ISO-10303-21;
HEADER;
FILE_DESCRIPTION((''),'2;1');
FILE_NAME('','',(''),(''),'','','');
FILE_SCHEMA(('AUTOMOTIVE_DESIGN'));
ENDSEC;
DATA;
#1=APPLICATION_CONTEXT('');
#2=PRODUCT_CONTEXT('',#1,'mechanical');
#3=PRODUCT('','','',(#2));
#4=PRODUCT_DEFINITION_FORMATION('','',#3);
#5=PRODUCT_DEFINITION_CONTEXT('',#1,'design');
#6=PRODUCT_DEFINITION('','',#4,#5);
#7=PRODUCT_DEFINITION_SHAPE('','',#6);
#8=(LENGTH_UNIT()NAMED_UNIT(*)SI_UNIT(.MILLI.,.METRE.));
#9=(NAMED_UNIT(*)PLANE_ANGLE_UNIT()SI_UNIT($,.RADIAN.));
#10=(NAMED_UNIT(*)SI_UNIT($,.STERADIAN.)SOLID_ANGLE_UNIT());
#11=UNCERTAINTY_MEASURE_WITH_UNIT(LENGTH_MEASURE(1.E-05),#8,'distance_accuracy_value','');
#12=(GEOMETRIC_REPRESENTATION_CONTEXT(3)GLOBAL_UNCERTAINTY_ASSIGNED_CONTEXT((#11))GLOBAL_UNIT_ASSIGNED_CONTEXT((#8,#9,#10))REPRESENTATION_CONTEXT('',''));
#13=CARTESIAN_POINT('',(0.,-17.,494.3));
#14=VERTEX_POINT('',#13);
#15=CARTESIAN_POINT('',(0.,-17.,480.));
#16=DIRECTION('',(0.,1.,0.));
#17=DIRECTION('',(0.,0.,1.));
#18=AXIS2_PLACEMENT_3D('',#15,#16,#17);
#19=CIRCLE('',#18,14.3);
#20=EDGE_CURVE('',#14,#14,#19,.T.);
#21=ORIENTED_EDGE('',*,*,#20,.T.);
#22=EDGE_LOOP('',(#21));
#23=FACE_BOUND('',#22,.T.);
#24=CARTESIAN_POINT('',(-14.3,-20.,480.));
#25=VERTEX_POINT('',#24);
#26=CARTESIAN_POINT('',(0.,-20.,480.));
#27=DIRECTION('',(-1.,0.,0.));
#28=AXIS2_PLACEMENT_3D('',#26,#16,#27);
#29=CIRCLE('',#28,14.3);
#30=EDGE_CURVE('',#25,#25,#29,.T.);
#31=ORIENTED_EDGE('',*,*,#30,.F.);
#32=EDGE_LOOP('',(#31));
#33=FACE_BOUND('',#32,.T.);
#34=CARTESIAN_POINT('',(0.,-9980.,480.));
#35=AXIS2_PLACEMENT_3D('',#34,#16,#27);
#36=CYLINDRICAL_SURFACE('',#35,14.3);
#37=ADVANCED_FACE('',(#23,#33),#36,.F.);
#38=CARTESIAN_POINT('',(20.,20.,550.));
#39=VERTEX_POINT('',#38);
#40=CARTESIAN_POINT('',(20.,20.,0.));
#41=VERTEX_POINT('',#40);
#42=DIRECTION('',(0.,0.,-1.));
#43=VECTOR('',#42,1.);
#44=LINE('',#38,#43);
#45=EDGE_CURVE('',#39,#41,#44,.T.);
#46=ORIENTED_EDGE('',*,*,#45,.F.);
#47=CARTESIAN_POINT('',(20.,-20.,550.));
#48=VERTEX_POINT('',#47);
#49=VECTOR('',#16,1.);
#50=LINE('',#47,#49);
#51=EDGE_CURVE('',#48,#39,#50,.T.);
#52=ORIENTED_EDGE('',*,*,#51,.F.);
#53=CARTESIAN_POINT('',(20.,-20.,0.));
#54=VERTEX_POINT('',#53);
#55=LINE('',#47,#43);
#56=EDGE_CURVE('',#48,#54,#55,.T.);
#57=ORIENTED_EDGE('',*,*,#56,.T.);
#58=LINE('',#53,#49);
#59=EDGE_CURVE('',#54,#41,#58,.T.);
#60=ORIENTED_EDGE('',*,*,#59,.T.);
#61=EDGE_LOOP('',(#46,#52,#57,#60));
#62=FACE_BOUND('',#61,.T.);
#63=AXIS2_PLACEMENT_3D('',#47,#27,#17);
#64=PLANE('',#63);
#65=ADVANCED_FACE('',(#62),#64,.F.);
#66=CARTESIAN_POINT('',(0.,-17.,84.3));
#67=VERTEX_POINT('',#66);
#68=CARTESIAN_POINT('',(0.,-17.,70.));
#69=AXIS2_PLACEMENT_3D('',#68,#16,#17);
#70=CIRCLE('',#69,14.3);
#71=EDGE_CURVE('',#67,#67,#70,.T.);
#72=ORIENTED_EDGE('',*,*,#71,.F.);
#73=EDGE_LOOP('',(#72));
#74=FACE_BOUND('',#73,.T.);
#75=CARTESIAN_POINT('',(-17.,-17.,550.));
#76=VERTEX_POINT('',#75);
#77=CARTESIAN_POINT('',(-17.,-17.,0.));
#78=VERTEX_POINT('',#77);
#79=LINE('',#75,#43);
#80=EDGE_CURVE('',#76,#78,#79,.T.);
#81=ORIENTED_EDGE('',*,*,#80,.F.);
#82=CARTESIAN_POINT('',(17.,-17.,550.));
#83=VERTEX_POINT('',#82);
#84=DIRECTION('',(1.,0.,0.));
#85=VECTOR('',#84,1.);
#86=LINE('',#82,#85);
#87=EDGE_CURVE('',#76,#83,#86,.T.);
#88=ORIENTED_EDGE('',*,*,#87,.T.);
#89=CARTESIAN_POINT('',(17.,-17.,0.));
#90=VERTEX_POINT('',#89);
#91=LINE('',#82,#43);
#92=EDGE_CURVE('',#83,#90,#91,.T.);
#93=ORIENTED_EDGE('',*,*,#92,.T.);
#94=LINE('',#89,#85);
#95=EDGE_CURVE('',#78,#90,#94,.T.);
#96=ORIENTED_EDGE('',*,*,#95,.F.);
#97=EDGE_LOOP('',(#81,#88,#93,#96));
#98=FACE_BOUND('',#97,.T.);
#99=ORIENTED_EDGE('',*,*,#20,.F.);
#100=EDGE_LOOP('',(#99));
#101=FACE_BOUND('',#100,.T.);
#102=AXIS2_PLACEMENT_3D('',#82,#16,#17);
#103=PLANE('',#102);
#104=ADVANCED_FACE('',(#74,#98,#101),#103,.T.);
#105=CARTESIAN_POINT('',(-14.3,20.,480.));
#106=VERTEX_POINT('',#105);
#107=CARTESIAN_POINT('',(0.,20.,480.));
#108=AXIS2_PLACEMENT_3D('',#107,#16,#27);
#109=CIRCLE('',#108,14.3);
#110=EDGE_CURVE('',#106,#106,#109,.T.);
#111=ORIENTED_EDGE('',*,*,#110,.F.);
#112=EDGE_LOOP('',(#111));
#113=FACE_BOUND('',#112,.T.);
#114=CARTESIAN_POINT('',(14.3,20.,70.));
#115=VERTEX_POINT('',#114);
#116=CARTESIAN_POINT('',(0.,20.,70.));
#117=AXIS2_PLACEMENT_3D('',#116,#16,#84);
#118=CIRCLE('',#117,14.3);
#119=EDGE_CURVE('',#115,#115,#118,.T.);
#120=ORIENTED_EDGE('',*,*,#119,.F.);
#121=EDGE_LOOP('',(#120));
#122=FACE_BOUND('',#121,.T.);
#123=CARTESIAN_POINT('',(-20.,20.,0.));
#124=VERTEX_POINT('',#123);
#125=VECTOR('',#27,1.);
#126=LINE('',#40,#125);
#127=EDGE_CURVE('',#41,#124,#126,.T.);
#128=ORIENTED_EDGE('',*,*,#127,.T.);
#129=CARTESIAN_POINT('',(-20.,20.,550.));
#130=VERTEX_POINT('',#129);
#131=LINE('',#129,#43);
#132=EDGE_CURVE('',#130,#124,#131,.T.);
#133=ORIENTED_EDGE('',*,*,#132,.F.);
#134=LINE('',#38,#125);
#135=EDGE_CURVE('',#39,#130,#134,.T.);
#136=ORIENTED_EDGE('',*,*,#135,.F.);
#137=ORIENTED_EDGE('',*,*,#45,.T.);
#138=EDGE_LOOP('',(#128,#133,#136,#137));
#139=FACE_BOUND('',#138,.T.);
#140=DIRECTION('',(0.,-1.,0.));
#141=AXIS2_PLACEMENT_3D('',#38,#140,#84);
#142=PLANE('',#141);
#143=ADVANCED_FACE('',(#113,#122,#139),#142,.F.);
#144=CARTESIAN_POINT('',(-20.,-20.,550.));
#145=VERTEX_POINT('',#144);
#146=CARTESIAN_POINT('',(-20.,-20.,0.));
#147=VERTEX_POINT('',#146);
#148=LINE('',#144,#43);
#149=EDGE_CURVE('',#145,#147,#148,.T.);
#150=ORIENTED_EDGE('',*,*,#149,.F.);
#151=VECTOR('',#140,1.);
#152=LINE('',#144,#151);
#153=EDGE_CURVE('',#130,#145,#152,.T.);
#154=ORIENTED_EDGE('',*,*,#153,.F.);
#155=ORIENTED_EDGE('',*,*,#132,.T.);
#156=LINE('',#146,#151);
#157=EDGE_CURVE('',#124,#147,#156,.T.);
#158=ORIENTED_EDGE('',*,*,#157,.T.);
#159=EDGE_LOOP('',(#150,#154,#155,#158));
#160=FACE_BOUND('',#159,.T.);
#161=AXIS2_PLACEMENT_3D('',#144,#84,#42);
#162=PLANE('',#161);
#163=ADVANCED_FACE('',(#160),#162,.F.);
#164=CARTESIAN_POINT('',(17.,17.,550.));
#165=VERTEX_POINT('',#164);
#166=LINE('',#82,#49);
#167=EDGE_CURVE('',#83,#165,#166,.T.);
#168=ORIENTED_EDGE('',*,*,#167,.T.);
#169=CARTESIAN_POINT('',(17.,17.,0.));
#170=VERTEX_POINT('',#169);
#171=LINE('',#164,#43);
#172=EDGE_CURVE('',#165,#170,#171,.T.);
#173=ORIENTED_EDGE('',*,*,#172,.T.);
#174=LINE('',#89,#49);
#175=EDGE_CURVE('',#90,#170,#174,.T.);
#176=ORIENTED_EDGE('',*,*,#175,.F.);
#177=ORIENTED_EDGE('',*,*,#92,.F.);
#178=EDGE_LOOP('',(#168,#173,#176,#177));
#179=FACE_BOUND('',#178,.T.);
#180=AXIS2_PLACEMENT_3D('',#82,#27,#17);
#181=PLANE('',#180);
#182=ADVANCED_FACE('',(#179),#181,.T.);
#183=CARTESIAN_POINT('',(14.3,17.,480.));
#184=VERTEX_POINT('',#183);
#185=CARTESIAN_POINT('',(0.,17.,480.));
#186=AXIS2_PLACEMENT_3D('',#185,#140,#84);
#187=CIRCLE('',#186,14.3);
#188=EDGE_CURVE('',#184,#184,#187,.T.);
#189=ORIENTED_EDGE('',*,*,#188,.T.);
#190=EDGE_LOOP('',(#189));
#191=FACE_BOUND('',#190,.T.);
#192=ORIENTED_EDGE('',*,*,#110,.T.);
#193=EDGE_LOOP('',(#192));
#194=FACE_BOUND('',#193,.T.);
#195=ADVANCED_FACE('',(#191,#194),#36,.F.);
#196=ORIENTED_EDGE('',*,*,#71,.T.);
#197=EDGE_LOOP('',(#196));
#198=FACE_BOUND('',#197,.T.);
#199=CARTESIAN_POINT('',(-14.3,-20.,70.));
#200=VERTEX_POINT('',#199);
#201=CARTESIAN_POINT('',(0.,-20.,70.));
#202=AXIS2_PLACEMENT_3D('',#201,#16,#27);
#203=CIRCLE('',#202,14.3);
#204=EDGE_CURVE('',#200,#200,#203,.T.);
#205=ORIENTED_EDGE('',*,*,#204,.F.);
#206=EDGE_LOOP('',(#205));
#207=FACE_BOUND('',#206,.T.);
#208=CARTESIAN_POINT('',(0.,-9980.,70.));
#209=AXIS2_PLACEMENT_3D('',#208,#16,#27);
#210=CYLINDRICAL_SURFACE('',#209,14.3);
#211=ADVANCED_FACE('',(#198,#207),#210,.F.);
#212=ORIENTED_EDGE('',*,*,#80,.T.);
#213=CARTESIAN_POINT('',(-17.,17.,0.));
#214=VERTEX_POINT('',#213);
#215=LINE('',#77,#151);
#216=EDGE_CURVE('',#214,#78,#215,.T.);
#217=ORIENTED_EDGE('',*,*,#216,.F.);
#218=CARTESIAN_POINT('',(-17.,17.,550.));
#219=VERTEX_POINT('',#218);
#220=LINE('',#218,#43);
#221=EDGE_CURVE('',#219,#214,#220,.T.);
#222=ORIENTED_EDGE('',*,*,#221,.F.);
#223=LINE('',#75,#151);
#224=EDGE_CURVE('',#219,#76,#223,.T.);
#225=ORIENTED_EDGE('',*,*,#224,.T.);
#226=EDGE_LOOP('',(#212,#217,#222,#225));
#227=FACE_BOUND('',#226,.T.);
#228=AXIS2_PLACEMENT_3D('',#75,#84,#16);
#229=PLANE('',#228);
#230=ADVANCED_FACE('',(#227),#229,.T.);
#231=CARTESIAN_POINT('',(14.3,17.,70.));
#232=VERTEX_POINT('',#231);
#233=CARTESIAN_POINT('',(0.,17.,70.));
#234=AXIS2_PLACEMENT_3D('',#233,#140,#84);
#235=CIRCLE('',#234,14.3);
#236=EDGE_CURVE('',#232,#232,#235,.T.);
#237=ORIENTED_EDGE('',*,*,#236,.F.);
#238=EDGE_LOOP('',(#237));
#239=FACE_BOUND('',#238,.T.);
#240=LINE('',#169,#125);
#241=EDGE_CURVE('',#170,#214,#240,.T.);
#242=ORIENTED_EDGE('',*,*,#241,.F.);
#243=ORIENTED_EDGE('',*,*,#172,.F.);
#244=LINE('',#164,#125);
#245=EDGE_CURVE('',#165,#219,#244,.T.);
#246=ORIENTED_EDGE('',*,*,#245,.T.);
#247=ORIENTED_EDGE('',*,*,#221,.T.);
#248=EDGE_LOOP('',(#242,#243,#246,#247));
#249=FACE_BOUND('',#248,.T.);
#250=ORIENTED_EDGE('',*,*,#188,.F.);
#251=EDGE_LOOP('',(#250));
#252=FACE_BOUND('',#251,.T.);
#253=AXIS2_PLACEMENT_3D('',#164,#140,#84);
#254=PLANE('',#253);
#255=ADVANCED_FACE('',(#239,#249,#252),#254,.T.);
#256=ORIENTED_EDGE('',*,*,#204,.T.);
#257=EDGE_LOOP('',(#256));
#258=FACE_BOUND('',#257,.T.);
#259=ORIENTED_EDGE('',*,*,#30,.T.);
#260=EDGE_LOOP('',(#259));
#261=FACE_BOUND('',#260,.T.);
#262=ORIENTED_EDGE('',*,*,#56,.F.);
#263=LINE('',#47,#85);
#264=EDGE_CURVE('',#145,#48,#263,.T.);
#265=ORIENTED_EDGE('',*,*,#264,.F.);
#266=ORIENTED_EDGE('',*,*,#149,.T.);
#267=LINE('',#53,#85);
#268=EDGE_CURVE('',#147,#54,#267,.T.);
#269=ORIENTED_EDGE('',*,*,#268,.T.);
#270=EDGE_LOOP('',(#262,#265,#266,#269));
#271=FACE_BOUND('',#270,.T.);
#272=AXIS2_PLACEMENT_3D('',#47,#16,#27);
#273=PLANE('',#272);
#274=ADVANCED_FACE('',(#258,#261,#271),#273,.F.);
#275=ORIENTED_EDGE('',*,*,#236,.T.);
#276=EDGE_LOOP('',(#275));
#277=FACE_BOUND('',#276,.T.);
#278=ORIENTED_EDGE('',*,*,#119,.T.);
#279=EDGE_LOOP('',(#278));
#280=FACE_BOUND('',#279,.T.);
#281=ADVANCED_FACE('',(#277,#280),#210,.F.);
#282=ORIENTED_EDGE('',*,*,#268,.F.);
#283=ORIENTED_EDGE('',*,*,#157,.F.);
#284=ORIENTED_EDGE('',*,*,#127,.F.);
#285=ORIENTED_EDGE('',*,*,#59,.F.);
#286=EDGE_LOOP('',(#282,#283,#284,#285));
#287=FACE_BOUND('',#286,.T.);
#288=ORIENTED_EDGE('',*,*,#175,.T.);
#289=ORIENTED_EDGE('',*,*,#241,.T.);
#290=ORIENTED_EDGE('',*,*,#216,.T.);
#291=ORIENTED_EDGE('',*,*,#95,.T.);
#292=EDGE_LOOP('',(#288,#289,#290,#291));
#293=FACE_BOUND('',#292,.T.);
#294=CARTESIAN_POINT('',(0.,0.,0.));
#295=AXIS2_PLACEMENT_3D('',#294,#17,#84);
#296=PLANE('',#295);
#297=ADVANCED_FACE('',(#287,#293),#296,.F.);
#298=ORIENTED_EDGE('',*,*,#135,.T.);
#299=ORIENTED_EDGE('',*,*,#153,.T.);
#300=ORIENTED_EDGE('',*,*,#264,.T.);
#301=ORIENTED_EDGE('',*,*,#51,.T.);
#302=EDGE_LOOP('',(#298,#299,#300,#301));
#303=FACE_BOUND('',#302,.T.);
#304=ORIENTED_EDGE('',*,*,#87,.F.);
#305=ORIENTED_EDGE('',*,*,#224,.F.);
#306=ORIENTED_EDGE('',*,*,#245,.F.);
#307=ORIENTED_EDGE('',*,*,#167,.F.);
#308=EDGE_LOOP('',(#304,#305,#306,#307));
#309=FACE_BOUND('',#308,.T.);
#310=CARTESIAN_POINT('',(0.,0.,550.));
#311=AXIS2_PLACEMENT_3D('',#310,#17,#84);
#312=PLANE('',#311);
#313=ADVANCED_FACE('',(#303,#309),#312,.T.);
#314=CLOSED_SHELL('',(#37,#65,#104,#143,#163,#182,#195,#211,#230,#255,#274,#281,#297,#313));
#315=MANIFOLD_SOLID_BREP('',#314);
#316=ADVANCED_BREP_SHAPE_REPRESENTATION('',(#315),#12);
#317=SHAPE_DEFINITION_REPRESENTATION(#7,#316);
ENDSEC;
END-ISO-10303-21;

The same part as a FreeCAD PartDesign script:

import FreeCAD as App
import Part
import Sketcher
from FreeCAD import Vector

doc = App.newDocument("Part")
body = doc.addObject("PartDesign::Body", "Body")

sketch1 = body.newObject("Sketcher::SketchObject", "Sketch")
sketch1.AttachmentSupport = (doc.getObject("XY_Plane"), [""])
sketch1.MapMode = "FlatFace"
sketch1.addGeometry(Part.LineSegment(Vector(-20, 20, 0), Vector(-20, -20, 0)), False)
sketch1.addGeometry(Part.LineSegment(Vector(-20, -20, 0), Vector(20, -20, 0)), False)
sketch1.addGeometry(Part.LineSegment(Vector(20, -20, 0), Vector(20, 20, 0)), False)
sketch1.addGeometry(Part.LineSegment(Vector(20, 20, 0), Vector(-20, 20, 0)), False)
sketch1.addGeometry(Part.LineSegment(Vector(17, -17, 0), Vector(-17, -17, 0)), False)
sketch1.addGeometry(Part.LineSegment(Vector(-17, -17, 0), Vector(-17, 17, 0)), False)
sketch1.addGeometry(Part.LineSegment(Vector(-17, 17, 0), Vector(17, 17, 0)), False)
sketch1.addGeometry(Part.LineSegment(Vector(17, 17, 0), Vector(17, -17, 0)), False)
sketch1.addConstraint(Sketcher.Constraint("Coincident", 0, 2, 1, 1))
sketch1.addConstraint(Sketcher.Constraint("Coincident", 1, 2, 2, 1))
sketch1.addConstraint(Sketcher.Constraint("Coincident", 2, 2, 3, 1))
sketch1.addConstraint(Sketcher.Constraint("Coincident", 3, 2, 0, 1))
sketch1.addConstraint(Sketcher.Constraint("Coincident", 4, 2, 5, 1))
sketch1.addConstraint(Sketcher.Constraint("Coincident", 5, 2, 6, 1))
sketch1.addConstraint(Sketcher.Constraint("Coincident", 6, 2, 7, 1))
sketch1.addConstraint(Sketcher.Constraint("Coincident", 7, 2, 4, 1))
sketch1.addConstraint(Sketcher.Constraint("Vertical", 0))
sketch1.addConstraint(Sketcher.Constraint("Horizontal", 1))
sketch1.addConstraint(Sketcher.Constraint("Vertical", 2))
sketch1.addConstraint(Sketcher.Constraint("Horizontal", 3))
sketch1.addConstraint(Sketcher.Constraint("Horizontal", 4))
sketch1.addConstraint(Sketcher.Constraint("Vertical", 5))
sketch1.addConstraint(Sketcher.Constraint("Horizontal", 6))
sketch1.addConstraint(Sketcher.Constraint("Vertical", 7))
sketch1.addConstraint(Sketcher.Constraint("Symmetric", 0, 2, 2, 2, -1, 1))
sketch1.addConstraint(Sketcher.Constraint("Symmetric", 4, 2, 6, 2, -1, 1))
sketch1.addConstraint(Sketcher.Constraint("Equal", 3, 0))
sketch1.addConstraint(Sketcher.Constraint("Equal", 6, 5))
sketch1.addConstraint(Sketcher.Constraint("DistanceX", 1, 1, 1, 2, 40.0))
sketch1.addConstraint(Sketcher.Constraint("DistanceX", 4, 2, 4, 1, 34.0))
pad1 = body.newObject("PartDesign::Pad", "Pad")
pad1.Profile = sketch1
pad1.Length = 550

sketch2 = body.newObject("Sketcher::SketchObject", "Sketch001")
sketch2.AttachmentSupport = (doc.getObject("XZ_Plane"), [""])
sketch2.MapMode = "FlatFace"
sketch2.AttachmentOffset = App.Placement(Vector(0, 0, -20), App.Rotation())
sketch2.addGeometry(Part.Circle(Vector(0, 480, 0), Vector(0, 0, 1), 14), False)
sketch2.addGeometry(Part.Circle(Vector(0, 70, 0), Vector(0, 0, 1), 14), False)
sketch2.addConstraint(Sketcher.Constraint("Equal", 0, 1))
sketch2.addConstraint(Sketcher.Constraint("PointOnObject", 0, 3, -2))
sketch2.addConstraint(Sketcher.Constraint("PointOnObject", 1, 3, -2))
sketch2.addConstraint(Sketcher.Constraint("Diameter", 0, 28.6))
sketch2.addConstraint(Sketcher.Constraint("DistanceY", -1, 1, 0, 3, 480.0))
sketch2.addConstraint(Sketcher.Constraint("DistanceY", -1, 1, 1, 3, 70.0))
pocket1 = body.newObject("PartDesign::Pocket", "Pocket")
pocket1.Profile = sketch2
pocket1.Length = 10000
pocket1.Reversed = True

doc.recompute()
